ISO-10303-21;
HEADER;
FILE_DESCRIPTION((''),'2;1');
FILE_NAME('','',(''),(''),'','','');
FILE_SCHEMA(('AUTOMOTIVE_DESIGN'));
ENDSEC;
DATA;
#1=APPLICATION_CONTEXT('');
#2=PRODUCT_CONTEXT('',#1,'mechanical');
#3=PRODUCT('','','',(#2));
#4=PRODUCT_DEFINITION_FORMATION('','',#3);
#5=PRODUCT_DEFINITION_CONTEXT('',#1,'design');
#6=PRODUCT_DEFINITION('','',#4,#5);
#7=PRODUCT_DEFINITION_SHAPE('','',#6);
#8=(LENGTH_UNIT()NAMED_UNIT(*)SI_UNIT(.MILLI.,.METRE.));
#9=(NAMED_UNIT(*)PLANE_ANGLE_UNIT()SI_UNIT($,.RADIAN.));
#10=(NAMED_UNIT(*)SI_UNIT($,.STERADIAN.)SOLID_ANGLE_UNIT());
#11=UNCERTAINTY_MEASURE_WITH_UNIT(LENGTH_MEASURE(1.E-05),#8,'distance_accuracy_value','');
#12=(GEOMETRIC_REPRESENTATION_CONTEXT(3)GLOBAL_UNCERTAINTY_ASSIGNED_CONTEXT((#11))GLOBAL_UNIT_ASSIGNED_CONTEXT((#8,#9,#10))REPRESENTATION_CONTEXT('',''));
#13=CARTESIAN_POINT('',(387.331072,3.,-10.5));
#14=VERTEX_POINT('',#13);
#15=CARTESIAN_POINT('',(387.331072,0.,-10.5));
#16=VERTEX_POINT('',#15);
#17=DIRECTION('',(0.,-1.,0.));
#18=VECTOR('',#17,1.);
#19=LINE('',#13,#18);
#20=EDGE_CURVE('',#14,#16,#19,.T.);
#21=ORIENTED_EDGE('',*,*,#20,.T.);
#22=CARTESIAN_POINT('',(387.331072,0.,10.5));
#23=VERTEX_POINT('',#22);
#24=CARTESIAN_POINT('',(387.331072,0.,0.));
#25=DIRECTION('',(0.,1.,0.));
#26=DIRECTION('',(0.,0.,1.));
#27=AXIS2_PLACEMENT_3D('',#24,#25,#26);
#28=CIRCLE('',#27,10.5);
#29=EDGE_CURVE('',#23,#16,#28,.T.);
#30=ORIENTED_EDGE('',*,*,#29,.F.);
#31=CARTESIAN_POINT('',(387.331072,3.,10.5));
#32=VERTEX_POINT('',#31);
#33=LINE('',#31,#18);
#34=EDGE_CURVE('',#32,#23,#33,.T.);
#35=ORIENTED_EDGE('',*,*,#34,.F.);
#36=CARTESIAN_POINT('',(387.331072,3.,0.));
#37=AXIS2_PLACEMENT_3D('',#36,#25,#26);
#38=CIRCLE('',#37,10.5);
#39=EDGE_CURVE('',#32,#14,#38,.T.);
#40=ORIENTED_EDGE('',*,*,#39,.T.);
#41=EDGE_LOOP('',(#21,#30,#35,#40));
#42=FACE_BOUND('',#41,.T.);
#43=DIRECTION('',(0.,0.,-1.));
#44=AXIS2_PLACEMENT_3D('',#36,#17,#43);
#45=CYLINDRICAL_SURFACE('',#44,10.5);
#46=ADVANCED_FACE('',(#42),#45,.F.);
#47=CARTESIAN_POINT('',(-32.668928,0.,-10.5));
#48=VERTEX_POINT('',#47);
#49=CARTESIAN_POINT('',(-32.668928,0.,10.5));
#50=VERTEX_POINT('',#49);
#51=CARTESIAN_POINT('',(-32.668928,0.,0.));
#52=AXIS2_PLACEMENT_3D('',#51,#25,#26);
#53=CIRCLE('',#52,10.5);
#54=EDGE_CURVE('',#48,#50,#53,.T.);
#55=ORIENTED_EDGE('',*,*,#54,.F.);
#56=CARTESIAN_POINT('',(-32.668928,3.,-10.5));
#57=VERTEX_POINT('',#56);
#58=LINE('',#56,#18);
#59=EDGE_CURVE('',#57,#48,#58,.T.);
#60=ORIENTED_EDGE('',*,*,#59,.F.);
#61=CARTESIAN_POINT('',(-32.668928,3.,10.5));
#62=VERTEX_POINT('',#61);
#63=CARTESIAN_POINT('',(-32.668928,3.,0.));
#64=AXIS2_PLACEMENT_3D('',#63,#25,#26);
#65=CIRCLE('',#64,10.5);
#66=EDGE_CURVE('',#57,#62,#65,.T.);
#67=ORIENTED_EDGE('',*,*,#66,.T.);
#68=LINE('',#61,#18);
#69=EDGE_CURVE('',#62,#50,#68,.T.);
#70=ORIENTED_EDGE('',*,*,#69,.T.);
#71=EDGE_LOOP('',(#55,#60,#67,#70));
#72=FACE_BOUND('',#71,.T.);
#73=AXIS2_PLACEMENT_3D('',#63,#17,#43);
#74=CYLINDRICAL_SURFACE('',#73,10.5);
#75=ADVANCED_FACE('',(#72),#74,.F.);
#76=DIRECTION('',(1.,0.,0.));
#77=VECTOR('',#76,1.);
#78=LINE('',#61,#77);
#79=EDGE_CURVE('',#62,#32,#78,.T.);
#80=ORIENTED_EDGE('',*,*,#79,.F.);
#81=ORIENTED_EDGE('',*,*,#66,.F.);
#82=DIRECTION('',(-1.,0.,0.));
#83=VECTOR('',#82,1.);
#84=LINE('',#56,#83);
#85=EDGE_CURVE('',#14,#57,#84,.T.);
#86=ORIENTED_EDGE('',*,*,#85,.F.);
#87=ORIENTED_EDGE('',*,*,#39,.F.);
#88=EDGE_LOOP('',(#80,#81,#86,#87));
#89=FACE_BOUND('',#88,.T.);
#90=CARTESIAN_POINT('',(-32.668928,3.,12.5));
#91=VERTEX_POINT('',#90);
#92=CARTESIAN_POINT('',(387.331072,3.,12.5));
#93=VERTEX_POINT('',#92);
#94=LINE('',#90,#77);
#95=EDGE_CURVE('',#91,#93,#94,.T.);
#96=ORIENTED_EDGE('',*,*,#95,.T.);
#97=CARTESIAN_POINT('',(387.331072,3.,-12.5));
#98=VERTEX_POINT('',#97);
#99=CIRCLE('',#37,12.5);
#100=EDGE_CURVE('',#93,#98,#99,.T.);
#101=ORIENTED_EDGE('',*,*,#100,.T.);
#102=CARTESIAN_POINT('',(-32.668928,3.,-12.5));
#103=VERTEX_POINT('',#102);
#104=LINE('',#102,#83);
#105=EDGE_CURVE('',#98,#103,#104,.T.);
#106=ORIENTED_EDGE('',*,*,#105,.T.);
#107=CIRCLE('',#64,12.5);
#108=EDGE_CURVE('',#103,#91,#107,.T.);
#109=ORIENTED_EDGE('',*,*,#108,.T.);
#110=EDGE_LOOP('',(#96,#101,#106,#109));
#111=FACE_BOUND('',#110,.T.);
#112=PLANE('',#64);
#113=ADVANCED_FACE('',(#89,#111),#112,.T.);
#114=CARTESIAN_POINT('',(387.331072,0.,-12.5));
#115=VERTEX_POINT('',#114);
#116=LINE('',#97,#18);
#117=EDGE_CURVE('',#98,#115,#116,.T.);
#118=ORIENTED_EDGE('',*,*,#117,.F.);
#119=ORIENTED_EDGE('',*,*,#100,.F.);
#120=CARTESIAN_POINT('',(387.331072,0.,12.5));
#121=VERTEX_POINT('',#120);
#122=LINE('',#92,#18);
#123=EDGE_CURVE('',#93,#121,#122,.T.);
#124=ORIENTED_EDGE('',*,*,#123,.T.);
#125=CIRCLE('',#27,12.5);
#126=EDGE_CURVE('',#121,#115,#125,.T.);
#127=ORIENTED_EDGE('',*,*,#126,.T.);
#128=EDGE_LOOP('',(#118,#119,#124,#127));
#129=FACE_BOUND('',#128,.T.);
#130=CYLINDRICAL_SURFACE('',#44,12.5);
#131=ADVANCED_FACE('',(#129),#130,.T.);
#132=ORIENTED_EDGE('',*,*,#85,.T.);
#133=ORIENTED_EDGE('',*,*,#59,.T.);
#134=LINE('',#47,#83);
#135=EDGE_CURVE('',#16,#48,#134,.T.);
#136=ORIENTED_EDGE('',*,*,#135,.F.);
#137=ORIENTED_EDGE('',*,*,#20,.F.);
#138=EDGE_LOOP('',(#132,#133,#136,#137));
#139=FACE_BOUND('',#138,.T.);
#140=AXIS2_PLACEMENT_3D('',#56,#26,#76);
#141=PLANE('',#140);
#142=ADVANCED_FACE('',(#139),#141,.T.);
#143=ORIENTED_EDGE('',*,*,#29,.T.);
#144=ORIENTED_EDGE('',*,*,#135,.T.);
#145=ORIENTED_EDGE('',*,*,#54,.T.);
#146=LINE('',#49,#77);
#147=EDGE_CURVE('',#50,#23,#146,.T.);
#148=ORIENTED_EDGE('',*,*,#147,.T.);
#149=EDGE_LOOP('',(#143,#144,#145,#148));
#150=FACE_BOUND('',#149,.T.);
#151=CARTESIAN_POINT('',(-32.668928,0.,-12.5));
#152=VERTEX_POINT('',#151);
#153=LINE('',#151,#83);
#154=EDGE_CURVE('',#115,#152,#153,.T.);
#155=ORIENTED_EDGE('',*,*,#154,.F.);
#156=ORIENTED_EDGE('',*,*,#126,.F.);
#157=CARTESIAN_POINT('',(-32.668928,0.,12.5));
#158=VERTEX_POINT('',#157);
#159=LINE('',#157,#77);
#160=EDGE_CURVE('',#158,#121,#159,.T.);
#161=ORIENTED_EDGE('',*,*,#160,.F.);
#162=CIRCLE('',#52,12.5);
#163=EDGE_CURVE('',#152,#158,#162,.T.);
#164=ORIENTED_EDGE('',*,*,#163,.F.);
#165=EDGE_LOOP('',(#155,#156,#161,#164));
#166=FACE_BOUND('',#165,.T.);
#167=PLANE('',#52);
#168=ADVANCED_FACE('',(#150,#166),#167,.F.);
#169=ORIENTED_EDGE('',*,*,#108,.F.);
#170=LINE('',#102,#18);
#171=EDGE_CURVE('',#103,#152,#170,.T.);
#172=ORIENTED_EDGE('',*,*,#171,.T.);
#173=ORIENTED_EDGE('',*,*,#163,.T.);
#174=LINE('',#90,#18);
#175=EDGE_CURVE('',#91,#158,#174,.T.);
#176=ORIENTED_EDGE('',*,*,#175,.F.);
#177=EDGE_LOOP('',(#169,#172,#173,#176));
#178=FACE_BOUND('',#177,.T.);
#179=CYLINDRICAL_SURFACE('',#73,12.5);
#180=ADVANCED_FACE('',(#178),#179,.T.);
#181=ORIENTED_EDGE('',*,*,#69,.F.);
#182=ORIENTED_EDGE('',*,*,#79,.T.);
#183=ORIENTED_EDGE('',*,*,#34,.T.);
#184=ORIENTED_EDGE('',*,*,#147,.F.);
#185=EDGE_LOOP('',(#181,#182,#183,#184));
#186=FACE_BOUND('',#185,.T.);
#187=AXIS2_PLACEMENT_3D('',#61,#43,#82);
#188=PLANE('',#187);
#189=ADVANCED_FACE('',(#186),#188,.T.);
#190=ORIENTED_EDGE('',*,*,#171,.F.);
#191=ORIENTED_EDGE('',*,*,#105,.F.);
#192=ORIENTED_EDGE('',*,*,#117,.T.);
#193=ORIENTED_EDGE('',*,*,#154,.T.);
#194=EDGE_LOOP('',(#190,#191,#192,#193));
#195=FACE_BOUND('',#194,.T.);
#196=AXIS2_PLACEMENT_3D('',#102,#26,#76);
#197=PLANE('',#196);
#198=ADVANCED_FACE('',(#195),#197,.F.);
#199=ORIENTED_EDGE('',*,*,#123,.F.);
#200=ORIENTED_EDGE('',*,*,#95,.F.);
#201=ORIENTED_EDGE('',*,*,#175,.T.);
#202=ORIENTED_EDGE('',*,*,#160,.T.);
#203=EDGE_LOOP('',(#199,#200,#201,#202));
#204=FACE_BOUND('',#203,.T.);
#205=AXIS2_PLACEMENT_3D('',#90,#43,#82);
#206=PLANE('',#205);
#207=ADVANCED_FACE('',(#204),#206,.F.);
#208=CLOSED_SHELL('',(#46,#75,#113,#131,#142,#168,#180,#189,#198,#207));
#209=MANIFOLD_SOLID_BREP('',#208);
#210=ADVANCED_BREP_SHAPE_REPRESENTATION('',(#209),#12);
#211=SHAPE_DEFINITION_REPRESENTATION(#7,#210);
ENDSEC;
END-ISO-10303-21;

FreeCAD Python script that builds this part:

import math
import FreeCAD as App
import Part
import Sketcher
Q = App.Units.Quantity

doc = App.newDocument("Part")
body = doc.addObject("PartDesign::Body", "Body")

# Sketch on XZ plane
sketch1 = body.newObject("Sketcher::SketchObject", "Sketch")
sketch1.AttachmentSupport = (doc.getObject("XZ_Plane"), [""])
sketch1.MapMode = "FlatFace"
sketch1.addGeometry(Part.LineSegment(App.Vector(387, -12, 0), App.Vector(-33, -12, 0)), False)
sketch1.addGeometry(Part.ArcOfCircle(Part.Circle(App.Vector(-33, 0, 0), App.Vector(0, 0, 1), 12), math.radians(90), math.radians(270)), False)
sketch1.addGeometry(Part.LineSegment(App.Vector(-33, 12, 0), App.Vector(387, 12, 0)), False)
sketch1.addGeometry(Part.ArcOfCircle(Part.Circle(App.Vector(387, 0, 0), App.Vector(0, 0, 1), 12), math.radians(-90), math.radians(90)), False)
sketch1.addGeometry(Part.LineSegment(App.Vector(-33, -10, 0), App.Vector(387, -10, 0)), False)
sketch1.addGeometry(Part.ArcOfCircle(Part.Circle(App.Vector(387, 0, 0), App.Vector(0, 0, 1), 10), math.radians(-90), math.radians(90)), False)
sketch1.addGeometry(Part.LineSegment(App.Vector(387, 10, 0), App.Vector(-33, 10, 0)), False)
sketch1.addGeometry(Part.ArcOfCircle(Part.Circle(App.Vector(-33, 0, 0), App.Vector(0, 0, 1), 10), math.radians(90), math.radians(270)), False)
sketch1.addConstraint(Sketcher.Constraint("Tangent", 0, 2, 1, 2))
sketch1.addConstraint(Sketcher.Constraint("Tangent", 1, 1, 2, 1))
sketch1.addConstraint(Sketcher.Constraint("Tangent", 2, 2, 3, 2))
sketch1.addConstraint(Sketcher.Constraint("Tangent", 3, 1, 0, 1))
sketch1.addConstraint(Sketcher.Constraint("Tangent", 4, 2, 5, 1))
sketch1.addConstraint(Sketcher.Constraint("Tangent", 5, 2, 6, 1))
sketch1.addConstraint(Sketcher.Constraint("Tangent", 6, 2, 7, 1))
sketch1.addConstraint(Sketcher.Constraint("Tangent", 7, 2, 4, 1))
sketch1.addConstraint(Sketcher.Constraint("Horizontal", 0))
sketch1.addConstraint(Sketcher.Constraint("Horizontal", 2))
sketch1.addConstraint(Sketcher.Constraint("Horizontal", 4))
sketch1.addConstraint(Sketcher.Constraint("Horizontal", 6))
sketch1.addConstraint(Sketcher.Constraint("Coincident", 5, 3, 3, 3))
sketch1.addConstraint(Sketcher.Constraint("PointOnObject", 1, 3, -1))
sketch1.addConstraint(Sketcher.Constraint("Vertical", 7, 3, 0, 2))
sketch1.addConstraint(Sketcher.Constraint("Radius", 1, Q("12.5 mm")))
sketch1.addConstraint(Sketcher.Constraint("Radius", 5, Q("10.5 mm")))
sketch1.addConstraint(Sketcher.Constraint("DistanceX", 0, 2, 0, 1, Q("420 mm")))
sketch1.addConstraint(Sketcher.Constraint("DistanceX", 1, 3, -1, 1, Q("32.668928 mm")))
pad1 = body.newObject("PartDesign::Pad", "Pad")
pad1.Profile = sketch1
pad1.Length = 3
pad1.Reversed = True

doc.recompute()
